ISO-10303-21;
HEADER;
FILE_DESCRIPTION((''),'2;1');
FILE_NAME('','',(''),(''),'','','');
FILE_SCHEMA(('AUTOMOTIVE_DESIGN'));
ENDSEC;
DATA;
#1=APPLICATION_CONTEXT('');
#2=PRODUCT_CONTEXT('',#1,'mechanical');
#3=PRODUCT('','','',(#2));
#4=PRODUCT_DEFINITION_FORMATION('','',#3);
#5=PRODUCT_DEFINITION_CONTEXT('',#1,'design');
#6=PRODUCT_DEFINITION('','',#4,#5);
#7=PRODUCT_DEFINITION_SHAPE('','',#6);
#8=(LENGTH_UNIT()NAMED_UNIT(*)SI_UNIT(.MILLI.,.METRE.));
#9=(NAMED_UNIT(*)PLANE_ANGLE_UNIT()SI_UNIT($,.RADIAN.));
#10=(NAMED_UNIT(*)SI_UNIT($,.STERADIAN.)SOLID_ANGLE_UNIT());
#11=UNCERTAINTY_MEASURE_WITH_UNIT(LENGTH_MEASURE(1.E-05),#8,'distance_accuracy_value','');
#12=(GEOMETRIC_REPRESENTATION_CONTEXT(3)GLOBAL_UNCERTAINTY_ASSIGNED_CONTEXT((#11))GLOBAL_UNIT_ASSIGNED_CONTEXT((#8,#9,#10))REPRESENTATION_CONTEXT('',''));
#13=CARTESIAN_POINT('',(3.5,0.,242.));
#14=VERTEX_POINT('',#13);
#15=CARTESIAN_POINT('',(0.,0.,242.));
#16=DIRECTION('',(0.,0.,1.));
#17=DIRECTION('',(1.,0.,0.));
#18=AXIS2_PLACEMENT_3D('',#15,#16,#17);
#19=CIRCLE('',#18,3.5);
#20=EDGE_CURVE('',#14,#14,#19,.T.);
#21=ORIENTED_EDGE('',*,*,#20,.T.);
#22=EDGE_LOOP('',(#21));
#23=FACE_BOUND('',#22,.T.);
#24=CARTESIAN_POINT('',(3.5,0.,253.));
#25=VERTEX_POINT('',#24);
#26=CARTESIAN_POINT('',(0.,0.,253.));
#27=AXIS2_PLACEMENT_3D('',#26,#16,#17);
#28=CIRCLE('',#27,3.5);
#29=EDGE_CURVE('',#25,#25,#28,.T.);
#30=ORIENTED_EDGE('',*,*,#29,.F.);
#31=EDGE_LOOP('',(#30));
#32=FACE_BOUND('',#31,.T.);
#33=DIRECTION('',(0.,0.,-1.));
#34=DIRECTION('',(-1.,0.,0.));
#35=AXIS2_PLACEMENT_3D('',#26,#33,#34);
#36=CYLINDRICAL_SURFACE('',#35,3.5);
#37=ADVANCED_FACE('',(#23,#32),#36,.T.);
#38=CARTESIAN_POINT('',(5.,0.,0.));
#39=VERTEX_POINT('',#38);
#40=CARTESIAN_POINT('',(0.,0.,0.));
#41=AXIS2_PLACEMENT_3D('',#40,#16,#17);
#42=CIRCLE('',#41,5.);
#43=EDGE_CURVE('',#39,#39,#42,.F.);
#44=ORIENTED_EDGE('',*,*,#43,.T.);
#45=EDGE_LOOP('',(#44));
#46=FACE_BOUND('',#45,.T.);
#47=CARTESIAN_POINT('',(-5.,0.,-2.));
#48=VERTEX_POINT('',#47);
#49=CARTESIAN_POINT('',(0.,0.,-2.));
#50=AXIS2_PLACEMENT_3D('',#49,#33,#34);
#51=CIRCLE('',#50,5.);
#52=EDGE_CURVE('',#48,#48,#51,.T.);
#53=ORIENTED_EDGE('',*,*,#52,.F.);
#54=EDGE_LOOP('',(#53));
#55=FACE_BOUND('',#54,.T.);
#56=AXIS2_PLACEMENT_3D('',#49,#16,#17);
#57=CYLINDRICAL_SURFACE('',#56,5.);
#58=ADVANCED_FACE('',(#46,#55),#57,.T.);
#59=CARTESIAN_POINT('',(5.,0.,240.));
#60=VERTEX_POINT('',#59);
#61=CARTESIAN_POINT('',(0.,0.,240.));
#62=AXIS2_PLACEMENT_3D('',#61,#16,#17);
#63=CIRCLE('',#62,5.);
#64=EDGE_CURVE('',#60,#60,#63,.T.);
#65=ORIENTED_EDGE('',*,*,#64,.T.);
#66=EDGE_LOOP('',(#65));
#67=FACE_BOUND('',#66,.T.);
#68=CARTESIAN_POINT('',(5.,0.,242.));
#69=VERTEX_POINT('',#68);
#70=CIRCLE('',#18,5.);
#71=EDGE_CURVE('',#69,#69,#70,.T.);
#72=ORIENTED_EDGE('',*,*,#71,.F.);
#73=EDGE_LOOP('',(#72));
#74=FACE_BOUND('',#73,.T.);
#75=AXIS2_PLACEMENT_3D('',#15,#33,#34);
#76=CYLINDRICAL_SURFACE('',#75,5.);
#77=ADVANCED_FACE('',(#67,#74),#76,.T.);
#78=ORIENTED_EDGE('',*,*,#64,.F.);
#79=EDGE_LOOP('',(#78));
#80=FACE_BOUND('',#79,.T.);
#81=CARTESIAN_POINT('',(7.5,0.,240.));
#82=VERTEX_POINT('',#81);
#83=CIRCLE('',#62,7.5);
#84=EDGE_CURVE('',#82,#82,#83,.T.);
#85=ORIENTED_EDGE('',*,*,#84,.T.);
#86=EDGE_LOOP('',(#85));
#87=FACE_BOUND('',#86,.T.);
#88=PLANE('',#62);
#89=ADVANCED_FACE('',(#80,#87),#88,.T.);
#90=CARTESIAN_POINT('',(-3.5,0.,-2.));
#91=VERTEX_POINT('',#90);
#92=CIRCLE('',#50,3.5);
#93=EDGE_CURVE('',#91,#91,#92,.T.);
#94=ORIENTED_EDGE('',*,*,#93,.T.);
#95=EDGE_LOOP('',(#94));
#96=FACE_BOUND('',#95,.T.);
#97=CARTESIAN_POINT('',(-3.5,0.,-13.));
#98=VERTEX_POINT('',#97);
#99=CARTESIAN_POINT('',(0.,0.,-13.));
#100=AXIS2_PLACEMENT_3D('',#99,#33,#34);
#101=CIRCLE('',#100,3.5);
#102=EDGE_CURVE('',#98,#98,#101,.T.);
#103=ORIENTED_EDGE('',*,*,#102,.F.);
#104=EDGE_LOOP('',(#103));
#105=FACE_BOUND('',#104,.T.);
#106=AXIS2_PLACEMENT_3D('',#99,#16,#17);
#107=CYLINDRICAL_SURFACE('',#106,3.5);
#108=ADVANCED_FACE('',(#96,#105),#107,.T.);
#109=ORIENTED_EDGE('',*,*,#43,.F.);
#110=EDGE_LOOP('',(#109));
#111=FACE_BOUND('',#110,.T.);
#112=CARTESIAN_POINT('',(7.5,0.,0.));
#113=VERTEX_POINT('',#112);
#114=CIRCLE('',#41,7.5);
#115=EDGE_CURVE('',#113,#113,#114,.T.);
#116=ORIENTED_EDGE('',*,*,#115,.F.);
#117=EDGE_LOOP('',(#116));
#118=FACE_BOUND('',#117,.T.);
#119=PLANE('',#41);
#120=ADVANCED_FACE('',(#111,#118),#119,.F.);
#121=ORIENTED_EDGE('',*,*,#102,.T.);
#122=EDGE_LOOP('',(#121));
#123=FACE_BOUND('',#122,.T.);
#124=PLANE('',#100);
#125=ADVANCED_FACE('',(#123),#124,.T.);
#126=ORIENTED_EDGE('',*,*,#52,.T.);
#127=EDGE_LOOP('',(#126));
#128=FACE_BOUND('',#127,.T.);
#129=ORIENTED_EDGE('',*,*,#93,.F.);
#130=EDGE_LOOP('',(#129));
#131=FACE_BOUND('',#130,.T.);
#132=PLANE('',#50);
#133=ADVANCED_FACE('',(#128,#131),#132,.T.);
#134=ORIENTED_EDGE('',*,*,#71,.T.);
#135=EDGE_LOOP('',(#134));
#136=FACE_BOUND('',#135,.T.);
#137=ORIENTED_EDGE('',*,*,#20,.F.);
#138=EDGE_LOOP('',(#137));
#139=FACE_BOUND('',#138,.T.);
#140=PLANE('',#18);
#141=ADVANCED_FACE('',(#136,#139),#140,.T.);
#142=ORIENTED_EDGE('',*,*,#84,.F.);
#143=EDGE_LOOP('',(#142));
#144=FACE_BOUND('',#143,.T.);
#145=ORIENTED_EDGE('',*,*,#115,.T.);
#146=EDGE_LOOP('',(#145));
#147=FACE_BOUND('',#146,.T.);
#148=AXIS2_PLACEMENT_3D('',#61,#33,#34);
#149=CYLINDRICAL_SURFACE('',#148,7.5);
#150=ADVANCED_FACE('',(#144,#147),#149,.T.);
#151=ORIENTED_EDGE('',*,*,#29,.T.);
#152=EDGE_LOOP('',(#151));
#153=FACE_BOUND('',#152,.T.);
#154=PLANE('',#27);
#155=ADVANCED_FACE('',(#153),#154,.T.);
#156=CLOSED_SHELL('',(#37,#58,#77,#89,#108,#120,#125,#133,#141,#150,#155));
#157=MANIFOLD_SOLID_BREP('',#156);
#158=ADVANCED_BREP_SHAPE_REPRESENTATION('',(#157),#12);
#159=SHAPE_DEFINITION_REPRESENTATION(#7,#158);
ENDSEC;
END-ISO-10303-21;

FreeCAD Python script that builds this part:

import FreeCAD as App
import Part
import Sketcher

doc = App.newDocument("Part")
body = doc.addObject("PartDesign::Body", "Body")

# Sketch on XY plane
sketch1 = body.newObject("Sketcher::SketchObject", "Sketch")
sketch1.AttachmentSupport = (doc.getObject("XY_Plane"), [""])
sketch1.MapMode = "FlatFace"
sketch1.addGeometry(Part.Circle(App.Vector(0, 0, 0), App.Vector(0, 0, 1), 8), False)
sketch1.addConstraint(Sketcher.Constraint("Coincident", 0, 3, -1, 1))
sketch1.addConstraint(Sketcher.Constraint("Diameter", 0, 15.0))
pad1 = body.newObject("PartDesign::Pad", "Pad")
pad1.Profile = sketch1
pad1.Length = 240

# Sketch on XY plane
sketch2 = body.newObject("Sketcher::SketchObject", "Sketch001")
sketch2.AttachmentSupport = (doc.getObject("XY_Plane"), [""])
sketch2.MapMode = "FlatFace"
sketch2.addGeometry(Part.Circle(App.Vector(0, 0, 0), App.Vector(0, 0, 1), 3.5), False)
sketch2.addConstraint(Sketcher.Constraint("Coincident", 0, 3, -1, 1))
sketch2.addConstraint(Sketcher.Constraint("Diameter", 0, 7.0))
pad2 = body.newObject("PartDesign::Pad", "Pad001")
pad2.Profile = sketch2
pad2.Length = 13
pad2.Reversed = True

# Sketch on XY plane
sketch3 = body.newObject("Sketcher::SketchObject", "Sketch002")
sketch3.AttachmentSupport = (doc.getObject("XY_Plane"), [""])
sketch3.MapMode = "FlatFace"
sketch3.AttachmentOffset = App.Placement(App.Vector(0, 0, 240), App.Rotation())
sketch3.addGeometry(Part.Circle(App.Vector(0, 0, 0), App.Vector(0, 0, 1), 3.5), False)
sketch3.addConstraint(Sketcher.Constraint("Coincident", 0, 3, -1, 1))
sketch3.addConstraint(Sketcher.Constraint("Diameter", 0, 7.0))
pad3 = body.newObject("PartDesign::Pad", "Pad002")
pad3.Profile = sketch3
pad3.Length = 13

# Sketch on XY plane
sketch4 = body.newObject("Sketcher::SketchObject", "Sketch003")
sketch4.AttachmentSupport = (doc.getObject("XY_Plane"), [""])
sketch4.MapMode = "FlatFace"
sketch4.addGeometry(Part.Circle(App.Vector(0, 0, 0), App.Vector(0, 0, 1), 5), False)
sketch4.addConstraint(Sketcher.Constraint("Coincident", 0, 3, -1, 1))
sketch4.addConstraint(Sketcher.Constraint("Diameter", 0, 10.0))
pad4 = body.newObject("PartDesign::Pad", "Pad003")
pad4.Profile = sketch4
pad4.Length = 2
pad4.Reversed = True

# Sketch on XY plane
sketch5 = body.newObject("Sketcher::SketchObject", "Sketch004")
sketch5.AttachmentSupport = (doc.getObject("XY_Plane"), [""])
sketch5.MapMode = "FlatFace"
sketch5.AttachmentOffset = App.Placement(App.Vector(0, 0, 240), App.Rotation())
sketch5.addGeometry(Part.Circle(App.Vector(0, 0, 0), App.Vector(0, 0, 1), 5), False)
sketch5.addConstraint(Sketcher.Constraint("Coincident", 0, 3, -1, 1))
sketch5.addConstraint(Sketcher.Constraint("Diameter", 0, 10.0))
pad5 = body.newObject("PartDesign::Pad", "Pad004")
pad5.Profile = sketch5
pad5.Length = 2

doc.recompute()
